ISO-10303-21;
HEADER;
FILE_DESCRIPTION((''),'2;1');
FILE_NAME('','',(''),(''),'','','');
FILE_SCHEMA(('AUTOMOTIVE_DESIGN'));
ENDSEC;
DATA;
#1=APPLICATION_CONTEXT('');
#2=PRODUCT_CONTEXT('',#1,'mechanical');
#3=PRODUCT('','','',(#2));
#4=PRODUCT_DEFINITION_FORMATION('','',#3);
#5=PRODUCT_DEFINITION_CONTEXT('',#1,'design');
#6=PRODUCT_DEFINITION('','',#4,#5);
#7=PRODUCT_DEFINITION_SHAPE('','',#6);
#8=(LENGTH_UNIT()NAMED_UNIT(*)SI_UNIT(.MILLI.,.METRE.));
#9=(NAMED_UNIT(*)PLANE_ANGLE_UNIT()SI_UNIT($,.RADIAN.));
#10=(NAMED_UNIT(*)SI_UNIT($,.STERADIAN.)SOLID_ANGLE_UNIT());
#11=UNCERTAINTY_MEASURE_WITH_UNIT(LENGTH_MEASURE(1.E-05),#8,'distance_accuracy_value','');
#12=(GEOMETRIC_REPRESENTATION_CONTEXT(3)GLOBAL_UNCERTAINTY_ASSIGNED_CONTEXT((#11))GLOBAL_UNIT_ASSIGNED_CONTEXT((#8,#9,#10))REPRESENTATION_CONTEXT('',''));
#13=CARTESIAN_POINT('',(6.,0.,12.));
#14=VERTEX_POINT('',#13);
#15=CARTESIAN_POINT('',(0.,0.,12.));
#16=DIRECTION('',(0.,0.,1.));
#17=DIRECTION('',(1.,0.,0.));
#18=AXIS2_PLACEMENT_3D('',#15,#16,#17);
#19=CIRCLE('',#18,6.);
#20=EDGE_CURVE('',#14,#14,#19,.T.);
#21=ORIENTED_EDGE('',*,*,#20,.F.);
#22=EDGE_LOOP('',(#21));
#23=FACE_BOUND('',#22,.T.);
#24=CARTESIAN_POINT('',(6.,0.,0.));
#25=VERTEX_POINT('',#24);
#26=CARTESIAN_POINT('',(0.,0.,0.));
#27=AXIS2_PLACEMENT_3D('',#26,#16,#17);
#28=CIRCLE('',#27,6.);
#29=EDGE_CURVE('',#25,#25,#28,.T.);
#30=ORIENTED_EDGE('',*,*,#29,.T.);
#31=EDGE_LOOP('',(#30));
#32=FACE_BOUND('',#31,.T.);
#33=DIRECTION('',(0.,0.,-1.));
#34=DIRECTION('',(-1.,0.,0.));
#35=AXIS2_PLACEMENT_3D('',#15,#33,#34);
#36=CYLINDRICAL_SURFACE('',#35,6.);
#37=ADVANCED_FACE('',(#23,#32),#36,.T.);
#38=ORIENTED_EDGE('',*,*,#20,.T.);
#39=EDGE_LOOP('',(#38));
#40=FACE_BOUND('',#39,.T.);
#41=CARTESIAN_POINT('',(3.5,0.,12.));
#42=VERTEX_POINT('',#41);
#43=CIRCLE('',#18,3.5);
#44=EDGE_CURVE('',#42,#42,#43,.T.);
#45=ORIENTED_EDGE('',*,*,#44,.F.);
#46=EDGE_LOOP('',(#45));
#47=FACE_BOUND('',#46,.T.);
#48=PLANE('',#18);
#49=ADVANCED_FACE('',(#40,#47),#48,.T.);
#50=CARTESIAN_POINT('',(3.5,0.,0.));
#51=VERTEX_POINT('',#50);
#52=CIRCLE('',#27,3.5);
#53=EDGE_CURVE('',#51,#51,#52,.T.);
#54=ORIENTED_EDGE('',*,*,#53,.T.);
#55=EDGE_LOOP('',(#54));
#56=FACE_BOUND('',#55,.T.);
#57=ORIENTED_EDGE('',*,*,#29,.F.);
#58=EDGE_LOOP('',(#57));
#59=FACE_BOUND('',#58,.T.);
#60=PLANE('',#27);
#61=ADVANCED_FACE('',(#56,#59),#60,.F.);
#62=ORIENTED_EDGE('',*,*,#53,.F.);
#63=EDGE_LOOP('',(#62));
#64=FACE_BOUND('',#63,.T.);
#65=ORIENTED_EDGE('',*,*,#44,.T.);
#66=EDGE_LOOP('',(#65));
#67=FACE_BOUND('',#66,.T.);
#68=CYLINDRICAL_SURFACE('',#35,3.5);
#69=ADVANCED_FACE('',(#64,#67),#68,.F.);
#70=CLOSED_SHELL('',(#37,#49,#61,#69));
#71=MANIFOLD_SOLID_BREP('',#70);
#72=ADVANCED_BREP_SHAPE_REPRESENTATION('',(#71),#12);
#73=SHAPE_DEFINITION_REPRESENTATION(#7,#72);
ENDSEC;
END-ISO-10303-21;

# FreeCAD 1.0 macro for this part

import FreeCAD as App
import Part
import Sketcher

V = App.Vector
Q = App.Units.Quantity

doc = App.newDocument("Part")
body = doc.addObject("PartDesign::Body", "Body")

sketch1 = doc.addObject("Sketcher::SketchObject", "Sketch")
body.addObject(sketch1)
sketch1.AttachmentSupport = (doc.XY_Plane, [""])
sketch1.MapMode = "FlatFace"
sketch1.addGeometry(Part.Circle(V(0, 0, 0), V(0, 0, 1), 6), False)
sketch1.addGeometry(Part.Circle(V(0, 0, 0), V(0, 0, 1), 3.5), False)
sketch1.addConstraint(Sketcher.Constraint("Coincident", 0, 3, -1, 1))
sketch1.addConstraint(Sketcher.Constraint("Coincident", 1, 3, -1, 1))
sketch1.addConstraint(Sketcher.Constraint("Diameter", 0, Q("12 mm")))
sketch1.addConstraint(Sketcher.Constraint("Diameter", 1, Q("7 mm")))
pad1 = doc.addObject("PartDesign::Pad", "Pad")
body.addObject(pad1)
pad1.Profile = sketch1
pad1.Length = 12

doc.recompute()
